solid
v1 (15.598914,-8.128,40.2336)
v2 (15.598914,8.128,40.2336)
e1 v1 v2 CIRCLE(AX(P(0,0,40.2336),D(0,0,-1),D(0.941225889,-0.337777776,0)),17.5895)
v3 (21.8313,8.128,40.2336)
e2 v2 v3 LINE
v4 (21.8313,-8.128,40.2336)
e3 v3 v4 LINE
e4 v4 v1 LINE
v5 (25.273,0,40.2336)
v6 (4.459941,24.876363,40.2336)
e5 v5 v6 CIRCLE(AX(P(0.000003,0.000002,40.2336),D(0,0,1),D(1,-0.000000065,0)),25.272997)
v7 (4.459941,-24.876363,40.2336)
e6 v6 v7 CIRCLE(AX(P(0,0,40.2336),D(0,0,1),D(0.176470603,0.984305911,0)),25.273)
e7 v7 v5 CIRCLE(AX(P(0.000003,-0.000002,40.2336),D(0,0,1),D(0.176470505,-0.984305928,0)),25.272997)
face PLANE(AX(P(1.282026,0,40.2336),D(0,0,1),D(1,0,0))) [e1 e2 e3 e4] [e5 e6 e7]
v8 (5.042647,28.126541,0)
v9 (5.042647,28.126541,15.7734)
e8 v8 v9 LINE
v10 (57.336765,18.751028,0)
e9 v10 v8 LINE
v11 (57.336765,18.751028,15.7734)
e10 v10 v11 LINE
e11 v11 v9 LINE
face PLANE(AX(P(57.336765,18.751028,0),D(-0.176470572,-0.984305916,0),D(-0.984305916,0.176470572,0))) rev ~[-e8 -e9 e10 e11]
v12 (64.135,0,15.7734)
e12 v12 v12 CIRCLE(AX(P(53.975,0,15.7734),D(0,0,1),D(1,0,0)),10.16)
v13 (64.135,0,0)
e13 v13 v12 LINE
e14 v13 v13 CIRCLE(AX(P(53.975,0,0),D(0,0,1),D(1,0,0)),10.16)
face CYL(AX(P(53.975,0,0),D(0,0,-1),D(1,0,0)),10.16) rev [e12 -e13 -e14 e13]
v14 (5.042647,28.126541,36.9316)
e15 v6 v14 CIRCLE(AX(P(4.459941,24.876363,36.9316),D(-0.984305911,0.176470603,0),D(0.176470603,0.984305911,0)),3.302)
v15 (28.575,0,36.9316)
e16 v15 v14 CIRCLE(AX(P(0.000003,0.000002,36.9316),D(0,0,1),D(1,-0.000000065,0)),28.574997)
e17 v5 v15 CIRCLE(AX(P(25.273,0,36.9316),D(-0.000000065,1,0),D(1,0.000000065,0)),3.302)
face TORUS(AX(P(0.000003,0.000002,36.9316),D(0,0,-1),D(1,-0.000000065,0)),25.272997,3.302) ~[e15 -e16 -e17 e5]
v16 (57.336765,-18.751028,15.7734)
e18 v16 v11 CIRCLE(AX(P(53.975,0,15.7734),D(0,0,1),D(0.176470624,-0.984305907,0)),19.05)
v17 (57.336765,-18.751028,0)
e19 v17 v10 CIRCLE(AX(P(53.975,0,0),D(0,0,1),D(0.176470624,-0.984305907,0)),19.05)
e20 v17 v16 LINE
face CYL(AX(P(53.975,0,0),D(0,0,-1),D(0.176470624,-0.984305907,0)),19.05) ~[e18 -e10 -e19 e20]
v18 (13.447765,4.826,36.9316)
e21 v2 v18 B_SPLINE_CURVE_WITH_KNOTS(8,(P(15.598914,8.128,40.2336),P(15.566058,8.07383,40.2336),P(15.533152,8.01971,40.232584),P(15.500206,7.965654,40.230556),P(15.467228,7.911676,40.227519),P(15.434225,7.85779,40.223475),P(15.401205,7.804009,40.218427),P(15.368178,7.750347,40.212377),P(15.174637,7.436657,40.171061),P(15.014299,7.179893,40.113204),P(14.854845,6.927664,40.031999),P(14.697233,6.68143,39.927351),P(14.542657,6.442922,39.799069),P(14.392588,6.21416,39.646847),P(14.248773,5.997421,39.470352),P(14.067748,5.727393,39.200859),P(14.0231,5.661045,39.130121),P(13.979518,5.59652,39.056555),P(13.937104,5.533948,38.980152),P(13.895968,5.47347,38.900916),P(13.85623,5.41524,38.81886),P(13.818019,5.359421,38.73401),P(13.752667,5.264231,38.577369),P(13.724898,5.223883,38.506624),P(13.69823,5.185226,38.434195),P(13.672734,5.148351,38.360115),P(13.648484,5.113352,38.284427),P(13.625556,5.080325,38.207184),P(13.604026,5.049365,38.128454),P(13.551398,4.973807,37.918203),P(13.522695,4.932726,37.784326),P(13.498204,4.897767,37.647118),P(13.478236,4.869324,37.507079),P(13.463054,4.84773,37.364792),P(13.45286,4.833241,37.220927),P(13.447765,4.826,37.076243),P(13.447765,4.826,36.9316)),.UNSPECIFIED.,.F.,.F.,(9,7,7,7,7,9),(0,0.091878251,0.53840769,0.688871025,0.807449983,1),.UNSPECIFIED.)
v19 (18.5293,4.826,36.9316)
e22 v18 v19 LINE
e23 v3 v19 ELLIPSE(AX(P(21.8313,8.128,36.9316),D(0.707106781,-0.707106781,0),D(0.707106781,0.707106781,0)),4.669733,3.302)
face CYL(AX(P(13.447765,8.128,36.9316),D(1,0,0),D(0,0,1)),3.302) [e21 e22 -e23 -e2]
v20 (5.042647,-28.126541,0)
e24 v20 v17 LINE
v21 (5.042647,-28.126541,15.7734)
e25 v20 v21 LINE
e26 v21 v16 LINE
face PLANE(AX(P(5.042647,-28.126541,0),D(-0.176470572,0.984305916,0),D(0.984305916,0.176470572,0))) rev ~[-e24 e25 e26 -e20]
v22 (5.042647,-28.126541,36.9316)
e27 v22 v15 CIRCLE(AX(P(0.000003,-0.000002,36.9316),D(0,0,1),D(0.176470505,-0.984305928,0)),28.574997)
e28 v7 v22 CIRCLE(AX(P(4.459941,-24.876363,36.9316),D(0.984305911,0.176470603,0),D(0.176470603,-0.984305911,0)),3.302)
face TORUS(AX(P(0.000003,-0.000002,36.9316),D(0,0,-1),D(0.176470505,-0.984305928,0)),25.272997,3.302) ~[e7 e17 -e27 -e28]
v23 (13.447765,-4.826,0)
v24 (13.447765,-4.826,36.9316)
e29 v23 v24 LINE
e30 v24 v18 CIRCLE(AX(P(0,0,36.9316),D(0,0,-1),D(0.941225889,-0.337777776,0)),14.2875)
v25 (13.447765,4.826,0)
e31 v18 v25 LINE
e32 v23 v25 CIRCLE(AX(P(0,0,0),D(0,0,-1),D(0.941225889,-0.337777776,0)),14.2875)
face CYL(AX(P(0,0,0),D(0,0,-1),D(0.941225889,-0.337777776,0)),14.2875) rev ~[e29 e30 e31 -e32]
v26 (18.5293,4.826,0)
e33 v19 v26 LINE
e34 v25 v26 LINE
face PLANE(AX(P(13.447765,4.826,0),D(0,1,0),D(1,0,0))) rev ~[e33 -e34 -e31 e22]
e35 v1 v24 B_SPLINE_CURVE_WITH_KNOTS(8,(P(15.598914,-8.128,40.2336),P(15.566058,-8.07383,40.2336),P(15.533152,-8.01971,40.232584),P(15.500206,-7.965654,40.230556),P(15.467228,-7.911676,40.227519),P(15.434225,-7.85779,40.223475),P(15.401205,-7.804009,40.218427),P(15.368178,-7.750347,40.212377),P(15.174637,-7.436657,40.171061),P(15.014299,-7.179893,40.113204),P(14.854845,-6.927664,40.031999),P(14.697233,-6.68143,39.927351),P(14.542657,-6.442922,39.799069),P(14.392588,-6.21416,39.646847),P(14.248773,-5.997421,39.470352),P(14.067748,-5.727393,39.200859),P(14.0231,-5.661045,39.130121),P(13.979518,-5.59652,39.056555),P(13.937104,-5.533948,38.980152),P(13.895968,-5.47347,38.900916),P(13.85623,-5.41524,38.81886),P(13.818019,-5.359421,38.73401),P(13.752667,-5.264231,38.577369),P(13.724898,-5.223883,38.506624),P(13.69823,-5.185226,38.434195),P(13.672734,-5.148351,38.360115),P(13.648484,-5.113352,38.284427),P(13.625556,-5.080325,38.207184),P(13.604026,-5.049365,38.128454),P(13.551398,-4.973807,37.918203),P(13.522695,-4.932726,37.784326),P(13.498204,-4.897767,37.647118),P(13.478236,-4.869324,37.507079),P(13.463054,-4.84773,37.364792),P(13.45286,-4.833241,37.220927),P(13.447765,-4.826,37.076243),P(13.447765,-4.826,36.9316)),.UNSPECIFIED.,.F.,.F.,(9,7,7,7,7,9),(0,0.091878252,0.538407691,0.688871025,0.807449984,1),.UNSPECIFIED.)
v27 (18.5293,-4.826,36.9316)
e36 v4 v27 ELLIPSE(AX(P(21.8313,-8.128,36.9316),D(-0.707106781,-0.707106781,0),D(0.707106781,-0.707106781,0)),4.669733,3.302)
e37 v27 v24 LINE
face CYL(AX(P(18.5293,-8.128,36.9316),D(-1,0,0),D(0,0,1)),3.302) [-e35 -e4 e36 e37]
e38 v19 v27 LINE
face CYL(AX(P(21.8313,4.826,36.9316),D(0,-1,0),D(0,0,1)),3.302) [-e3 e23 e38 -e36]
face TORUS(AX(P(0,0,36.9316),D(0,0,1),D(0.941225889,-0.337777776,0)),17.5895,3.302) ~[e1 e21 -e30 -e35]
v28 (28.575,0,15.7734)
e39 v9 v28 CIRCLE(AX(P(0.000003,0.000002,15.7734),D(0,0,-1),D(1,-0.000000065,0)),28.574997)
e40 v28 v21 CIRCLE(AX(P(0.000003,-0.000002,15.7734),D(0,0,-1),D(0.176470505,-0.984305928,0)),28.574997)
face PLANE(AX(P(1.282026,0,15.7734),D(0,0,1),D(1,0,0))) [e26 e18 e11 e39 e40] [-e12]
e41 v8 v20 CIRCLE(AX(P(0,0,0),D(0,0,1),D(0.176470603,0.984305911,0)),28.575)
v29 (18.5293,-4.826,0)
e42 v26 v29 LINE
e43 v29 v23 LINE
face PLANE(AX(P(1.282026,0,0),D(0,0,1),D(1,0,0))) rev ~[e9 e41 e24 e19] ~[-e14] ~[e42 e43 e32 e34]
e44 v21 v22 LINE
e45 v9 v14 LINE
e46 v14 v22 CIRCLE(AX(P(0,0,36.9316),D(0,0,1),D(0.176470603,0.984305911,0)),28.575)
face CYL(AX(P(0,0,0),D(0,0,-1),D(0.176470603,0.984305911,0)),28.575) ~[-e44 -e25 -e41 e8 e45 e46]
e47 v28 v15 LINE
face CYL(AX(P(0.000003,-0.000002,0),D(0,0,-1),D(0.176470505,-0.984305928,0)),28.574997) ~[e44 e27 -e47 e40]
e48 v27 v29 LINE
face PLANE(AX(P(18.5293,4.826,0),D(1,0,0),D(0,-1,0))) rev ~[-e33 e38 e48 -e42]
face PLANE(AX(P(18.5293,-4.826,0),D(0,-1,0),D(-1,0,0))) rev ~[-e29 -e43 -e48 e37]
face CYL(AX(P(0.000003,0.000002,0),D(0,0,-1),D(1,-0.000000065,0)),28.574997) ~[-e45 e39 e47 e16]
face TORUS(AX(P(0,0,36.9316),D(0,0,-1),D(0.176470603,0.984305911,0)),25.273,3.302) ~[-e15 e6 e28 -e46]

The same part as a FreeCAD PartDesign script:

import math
import FreeCAD as App
import Part
import Sketcher
Q = App.Units.Quantity


def edges_at(feature, points):
    """Names of the edges that pass closest to the given points."""
    edges = feature.Shape.Edges
    near = lambda p: min(range(len(edges)), key=lambda i: edges[i].distToShape(Part.Vertex(*p))[0])
    return sorted({f"Edge{near(p) + 1}" for p in points})

doc = App.newDocument("Part")
body = doc.addObject("PartDesign::Body", "Body")

# Sketch on XY plane
sketch1 = body.newObject("Sketcher::SketchObject", "Sketch")
sketch1.AttachmentSupport = (doc.getObject("XY_Plane"), [""])
sketch1.MapMode = "FlatFace"
sketch1.addGeometry(Part.ArcOfCircle(Part.Circle(App.Vector(0, 0, 0), App.Vector(0, 0, 1), 29), math.radians(-80), math.radians(0)), False)
sketch1.addGeometry(Part.ArcOfCircle(Part.Circle(App.Vector(0, 0, 0), App.Vector(0, 0, 1), 29), math.radians(0), math.radians(80)), False)
sketch1.addGeometry(Part.ArcOfCircle(Part.Circle(App.Vector(0, 0, 0), App.Vector(0, 0, 1), 29), math.radians(80), math.radians(280)), False)
sketch1.addGeometry(Part.LineSegment(App.Vector(19, -5, 0), App.Vector(13, -5, 0)), False)
sketch1.addGeometry(Part.ArcOfCircle(Part.Circle(App.Vector(0, 0, 0), App.Vector(0, 0, 1), 14), math.radians(20), math.radians(340)), False)
sketch1.addGeometry(Part.LineSegment(App.Vector(13, 5, 0), App.Vector(19, 5, 0)), False)
sketch1.addGeometry(Part.LineSegment(App.Vector(19, 5, 0), App.Vector(19, -5, 0)), False)
sketch1.addConstraint(Sketcher.Constraint("Tangent", 0, 2, 1, 1))
sketch1.addConstraint(Sketcher.Constraint("Tangent", 1, 2, 2, 1))
sketch1.addConstraint(Sketcher.Constraint("Tangent", 2, 2, 0, 1))
sketch1.addConstraint(Sketcher.Constraint("Coincident", 3, 2, 4, 2))
sketch1.addConstraint(Sketcher.Constraint("Coincident", 4, 1, 5, 1))
sketch1.addConstraint(Sketcher.Constraint("Coincident", 5, 2, 6, 1))
sketch1.addConstraint(Sketcher.Constraint("Coincident", 6, 2, 3, 1))
sketch1.addConstraint(Sketcher.Constraint("Horizontal", 3))
sketch1.addConstraint(Sketcher.Constraint("Horizontal", 5))
sketch1.addConstraint(Sketcher.Constraint("Vertical", 6))
sketch1.addConstraint(Sketcher.Constraint("Coincident", 0, 3, -1, 1))
sketch1.addConstraint(Sketcher.Constraint("Coincident", 4, 3, -1, 1))
sketch1.addConstraint(Sketcher.Constraint("PointOnObject", 0, 2, -1))
sketch1.addConstraint(Sketcher.Constraint("Vertical", 1, 2, 2, 2))
sketch1.addConstraint(Sketcher.Constraint("Vertical", 3, 2, 4, 1))
sketch1.addConstraint(Sketcher.Constraint("Radius", 0, Q("1.1249999 in")))
sketch1.addConstraint(Sketcher.Constraint("Radius", 4, Q("0.5625 in")))
sketch1.addConstraint(Sketcher.Constraint("DistanceY", 6, 2, 6, 1, Q("0.38 in")))
sketch1.addConstraint(Sketcher.Constraint("DistanceX", -1, 1, 5, 2, Q("0.7295 in")))
sketch1.addConstraint(Sketcher.Constraint("DistanceY", -1, 1, 1, 2, Q("28.126541 mm")))
pad1 = body.newObject("PartDesign::Pad", "Pad")
pad1.Profile = sketch1
pad1.Length = Q("1.584 in")

# Sketch on XY plane
sketch2 = body.newObject("Sketcher::SketchObject", "Sketch001")
sketch2.AttachmentSupport = (doc.getObject("XY_Plane"), [""])
sketch2.MapMode = "FlatFace"
sketch2.addGeometry(Part.ArcOfCircle(Part.Circle(App.Vector(0, 0, 0), App.Vector(0, 0, 1), 29), math.radians(80), math.radians(280)), False)
sketch2.addGeometry(Part.LineSegment(App.Vector(5, -28, 0), App.Vector(57, -19, 0)), False)
sketch2.addGeometry(Part.ArcOfCircle(Part.Circle(App.Vector(54, 0, 0), App.Vector(0, 0, 1), 19), math.radians(-80), math.radians(80)), False)
sketch2.addGeometry(Part.LineSegment(App.Vector(57, 19, 0), App.Vector(5, 28, 0)), False)
sketch2.addGeometry(Part.LineSegment(App.Vector(19, -5, 0), App.Vector(13, -5, 0)), False)
sketch2.addGeometry(Part.ArcOfCircle(Part.Circle(App.Vector(0, 0, 0), App.Vector(0, 0, 1), 14), math.radians(20), math.radians(340)), False)
sketch2.addGeometry(Part.LineSegment(App.Vector(13, 5, 0), App.Vector(19, 5, 0)), False)
sketch2.addGeometry(Part.LineSegment(App.Vector(19, 5, 0), App.Vector(19, -5, 0)), False)
sketch2.addGeometry(Part.Circle(App.Vector(54, 0, 0), App.Vector(0, 0, 1), 10), False)
sketch2.addConstraint(Sketcher.Constraint("Tangent", 0, 2, 1, 1))
sketch2.addConstraint(Sketcher.Constraint("Tangent", 1, 2, 2, 1))
sketch2.addConstraint(Sketcher.Constraint("Tangent", 2, 2, 3, 1))
sketch2.addConstraint(Sketcher.Constraint("Tangent", 3, 2, 0, 1))
sketch2.addConstraint(Sketcher.Constraint("Coincident", 4, 2, 5, 2))
sketch2.addConstraint(Sketcher.Constraint("Coincident", 5, 1, 6, 1))
sketch2.addConstraint(Sketcher.Constraint("Coincident", 6, 2, 7, 1))
sketch2.addConstraint(Sketcher.Constraint("Coincident", 7, 2, 4, 1))
sketch2.addConstraint(Sketcher.Constraint("Horizontal", 4))
sketch2.addConstraint(Sketcher.Constraint("Horizontal", 6))
sketch2.addConstraint(Sketcher.Constraint("Vertical", 7))
sketch2.addConstraint(Sketcher.Constraint("Coincident", 0, 3, -1, 1))
sketch2.addConstraint(Sketcher.Constraint("Coincident", 5, 3, -1, 1))
sketch2.addConstraint(Sketcher.Constraint("Coincident", 8, 3, 2, 3))
sketch2.addConstraint(Sketcher.Constraint("PointOnObject", 2, 3, -1))
sketch2.addConstraint(Sketcher.Constraint("Vertical", 4, 2, 5, 1))
sketch2.addConstraint(Sketcher.Constraint("Diameter", 8, Q("0.8 in")))
sketch2.addConstraint(Sketcher.Constraint("Radius", 2, Q("0.75 in")))
sketch2.addConstraint(Sketcher.Constraint("Radius", 0, Q("1.125 in")))
sketch2.addConstraint(Sketcher.Constraint("Radius", 5, Q("0.5625 in")))
sketch2.addConstraint(Sketcher.Constraint("DistanceY", 7, 2, 7, 1, Q("0.38 in")))
sketch2.addConstraint(Sketcher.Constraint("DistanceX", -1, 1, 2, 3, Q("2.125 in")))
sketch2.addConstraint(Sketcher.Constraint("DistanceX", -1, 1, 6, 2, Q("0.7295 in")))
pad2 = body.newObject("PartDesign::Pad", "Pad001")
pad2.Profile = sketch2
pad2.Length = Q("0.621 in")
doc.recompute()

fillet = body.newObject("PartDesign::Fillet", "Fillet")
fillet.Base = (pad2, edges_at(pad2, [
    (-28.575, 0, 40.234),
    (-14.287, 0, 40.234),
    (15.989, 4.826, 40.234),
    (18.529, 0, 40.234),
    (15.989, -4.826, 40.234),
]))
fillet.Radius = Q("0.13 in")

doc.recompute()
